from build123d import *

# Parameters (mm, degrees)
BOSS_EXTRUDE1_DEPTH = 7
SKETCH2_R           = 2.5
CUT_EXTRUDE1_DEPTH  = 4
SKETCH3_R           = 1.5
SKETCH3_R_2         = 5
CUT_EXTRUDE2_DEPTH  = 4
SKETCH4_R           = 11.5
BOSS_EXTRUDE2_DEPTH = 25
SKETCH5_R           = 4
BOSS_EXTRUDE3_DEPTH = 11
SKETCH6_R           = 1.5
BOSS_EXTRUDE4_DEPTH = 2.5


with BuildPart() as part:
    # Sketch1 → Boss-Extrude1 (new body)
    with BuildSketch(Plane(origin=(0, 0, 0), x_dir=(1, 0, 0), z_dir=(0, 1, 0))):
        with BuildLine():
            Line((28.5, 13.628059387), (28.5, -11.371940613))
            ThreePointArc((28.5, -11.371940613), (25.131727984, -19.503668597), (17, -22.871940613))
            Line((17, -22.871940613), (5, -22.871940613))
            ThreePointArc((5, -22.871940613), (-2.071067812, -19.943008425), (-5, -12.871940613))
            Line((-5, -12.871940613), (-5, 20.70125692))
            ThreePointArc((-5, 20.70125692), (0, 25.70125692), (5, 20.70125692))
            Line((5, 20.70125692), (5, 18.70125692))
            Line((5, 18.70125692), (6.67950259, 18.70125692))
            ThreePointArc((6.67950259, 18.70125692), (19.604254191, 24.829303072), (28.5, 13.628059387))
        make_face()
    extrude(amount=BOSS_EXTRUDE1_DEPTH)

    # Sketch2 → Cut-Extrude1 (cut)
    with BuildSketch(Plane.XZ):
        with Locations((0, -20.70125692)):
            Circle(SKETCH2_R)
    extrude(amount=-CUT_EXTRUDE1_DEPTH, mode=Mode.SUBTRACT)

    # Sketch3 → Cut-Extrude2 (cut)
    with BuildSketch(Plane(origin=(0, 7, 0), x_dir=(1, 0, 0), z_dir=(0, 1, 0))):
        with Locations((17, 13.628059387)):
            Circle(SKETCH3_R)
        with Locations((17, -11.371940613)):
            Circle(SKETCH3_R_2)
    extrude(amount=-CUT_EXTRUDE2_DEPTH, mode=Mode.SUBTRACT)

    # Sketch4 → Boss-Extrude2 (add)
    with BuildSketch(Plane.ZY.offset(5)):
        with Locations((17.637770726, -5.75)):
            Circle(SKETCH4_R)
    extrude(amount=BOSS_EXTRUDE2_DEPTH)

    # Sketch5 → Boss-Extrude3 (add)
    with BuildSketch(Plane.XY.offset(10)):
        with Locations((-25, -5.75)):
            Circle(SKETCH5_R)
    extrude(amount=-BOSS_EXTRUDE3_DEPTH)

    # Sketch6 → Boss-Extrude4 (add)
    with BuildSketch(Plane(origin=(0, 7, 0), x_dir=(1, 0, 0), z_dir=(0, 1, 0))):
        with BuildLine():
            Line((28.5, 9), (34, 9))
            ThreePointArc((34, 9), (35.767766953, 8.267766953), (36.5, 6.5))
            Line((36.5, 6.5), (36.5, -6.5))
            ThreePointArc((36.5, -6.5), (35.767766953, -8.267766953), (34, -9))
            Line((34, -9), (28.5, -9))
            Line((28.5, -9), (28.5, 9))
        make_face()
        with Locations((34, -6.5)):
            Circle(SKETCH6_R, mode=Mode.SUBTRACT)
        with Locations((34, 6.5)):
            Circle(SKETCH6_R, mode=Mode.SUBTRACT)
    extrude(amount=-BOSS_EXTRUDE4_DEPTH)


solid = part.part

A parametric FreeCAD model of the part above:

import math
import FreeCAD as App
import Part
import Sketcher

doc = App.newDocument("Part")
body = doc.addObject("PartDesign::Body", "Body")

sketch1 = body.newObject("Sketcher::SketchObject", "Sketch")
sketch1.AttachmentSupport = (doc.getObject("XZ_Plane"), [""])
sketch1.MapMode = "FlatFace"
sketch1.addGeometry([
    Part.LineSegment(App.Vector(28.5, 11.4, 0), App.Vector(28.5, -13.6, 0)),
    Part.ArcOfCircle(Part.Circle(App.Vector(17, -13.6, 0), App.Vector(0, 0, 1), 11.5), math.radians(-154), math.radians(0)),
    Part.LineSegment(App.Vector(6.7, -18.7, 0), App.Vector(5, -18.7, 0)),
    Part.LineSegment(App.Vector(5, -18.7, 0), App.Vector(5, -20.7, 0)),
    Part.ArcOfCircle(Part.Circle(App.Vector(0, -20.7, 0), App.Vector(0, 0, 1), 5), math.radians(180), math.radians(360)),
    Part.LineSegment(App.Vector(-5, -20.7, 0), App.Vector(-5, 12.9, 0)),
    Part.ArcOfCircle(Part.Circle(App.Vector(5, 12.9, 0), App.Vector(0, 0, 1), 10), math.radians(90), math.radians(180)),
    Part.LineSegment(App.Vector(5, 22.9, 0), App.Vector(17, 22.9, 0)),
    Part.ArcOfCircle(Part.Circle(App.Vector(17, 11.4, 0), App.Vector(0, 0, 1), 11.5), math.radians(0), math.radians(90)),
], False)
sketch1.addConstraint([
    Sketcher.Constraint("Tangent", 0, 2, 1, 2),
    Sketcher.Constraint("Coincident", 1, 1, 2, 1),
    Sketcher.Constraint("Coincident", 2, 2, 3, 1),
    Sketcher.Constraint("Tangent", 3, 2, 4, 2),
    Sketcher.Constraint("Tangent", 4, 1, 5, 1),
    Sketcher.Constraint("Tangent", 5, 2, 6, 2),
    Sketcher.Constraint("Tangent", 6, 1, 7, 1),
    Sketcher.Constraint("Tangent", 7, 2, 8, 2),
    Sketcher.Constraint("Tangent", 8, 1, 0, 1),
    Sketcher.Constraint("Vertical", 0),
    Sketcher.Constraint("Horizontal", 2),
    Sketcher.Constraint("Vertical", 3),
    Sketcher.Constraint("Vertical", 5),
    Sketcher.Constraint("Horizontal", 7),
    Sketcher.Constraint("Equal", 1, 8),
    Sketcher.Constraint("PointOnObject", 4, 3, -2),
    Sketcher.Constraint("Vertical", 6, 3, 2, 2),
    Sketcher.Constraint("Radius", 4, 5.0),
    Sketcher.Constraint("Radius", 1, 11.5),
    Sketcher.Constraint("DistanceX", 7, 1, 7, 2, 12.0),
    Sketcher.Constraint("DistanceY", 0, 2, 0, 1, 25.0),
    Sketcher.Constraint("DistanceY", 3, 2, 3, 1, 2.0),
    Sketcher.Constraint("DistanceX", 2, 2, 2, 1, 1.679503),
    Sketcher.Constraint("DistanceY", 1, 3, -1, 1, 13.628059),
])
pad1 = body.newObject("PartDesign::Pad", "Pad")
pad1.Profile = sketch1
pad1.Length = 7
pad1.Reversed = True

sketch2 = body.newObject("Sketcher::SketchObject", "Sketch001")
sketch2.AttachmentSupport = (doc.getObject("XZ_Plane"), [""])
sketch2.MapMode = "FlatFace"
sketch2.addGeometry(Part.Circle(App.Vector(0, -20.7, 0), App.Vector(0, 0, 1), 2.5), False)
sketch2.addConstraint([
    Sketcher.Constraint("PointOnObject", 0, 3, -2),
    Sketcher.Constraint("Diameter", 0, 5.0),
    Sketcher.Constraint("DistanceY", 0, 3, -1, 1, 20.701257),
])
pocket1 = body.newObject("PartDesign::Pocket", "Pocket")
pocket1.Profile = sketch2
pocket1.Length = 4

sketch3 = body.newObject("Sketcher::SketchObject", "Sketch002")
sketch3.AttachmentSupport = (doc.getObject("XZ_Plane"), [""])
sketch3.MapMode = "FlatFace"
sketch3.AttachmentOffset = App.Placement(App.Vector(0, 0, -7), App.Rotation())
sketch3.addGeometry([
    Part.Circle(App.Vector(17, -13.6, 0), App.Vector(0, 0, 1), 1.5),
    Part.Circle(App.Vector(17, 11.4, 0), App.Vector(0, 0, 1), 5),
], False)
sketch3.addConstraint([
    Sketcher.Constraint("Vertical", 0, 3, 1, 3),
    Sketcher.Constraint("Diameter", 0, 3.0),
    Sketcher.Constraint("Diameter", 1, 10.0),
    Sketcher.Constraint("DistanceX", -1, 1, 0, 3, 17.0),
    Sketcher.Constraint("DistanceY", 0, 3, 1, 3, 25.0),
    Sketcher.Constraint("DistanceY", 0, 3, -1, 1, 13.628059),
])
pocket2 = body.newObject("PartDesign::Pocket", "Pocket001")
pocket2.Profile = sketch3
pocket2.Length = 4
pocket2.Reversed = True

sketch4 = body.newObject("Sketcher::SketchObject", "Sketch003")
sketch4.AttachmentSupport = (doc.getObject("YZ_Plane"), [""])
sketch4.MapMode = "FlatFace"
sketch4.AttachmentOffset = App.Placement(App.Vector(0, 0, -5), App.Rotation())
sketch4.addGeometry(Part.Circle(App.Vector(-6, 18, 0), App.Vector(0, 0, 1), 12), False)
sketch4.addConstraint([
    Sketcher.Constraint("Diameter", 0, 23.0),
    Sketcher.Constraint("DistanceX", 0, 3, -1, 1, 5.75),
    Sketcher.Constraint("DistanceY", -1, 1, 0, 3, 17.637771),
])
pad2 = body.newObject("PartDesign::Pad", "Pad001")
pad2.Profile = sketch4
pad2.Length = 25
pad2.Reversed = True

sketch5 = body.newObject("Sketcher::SketchObject", "Sketch004")
sketch5.AttachmentSupport = (doc.getObject("XY_Plane"), [""])
sketch5.MapMode = "FlatFace"
sketch5.AttachmentOffset = App.Placement(App.Vector(0, 0, 10), App.Rotation())
sketch5.addGeometry(Part.Circle(App.Vector(-25, -5.8, 0), App.Vector(0, 0, 1), 4), False)
sketch5.addConstraint([
    Sketcher.Constraint("Diameter", 0, 8.0),
    Sketcher.Constraint("DistanceX", 0, 3, -1, 1, 25.0),
    Sketcher.Constraint("DistanceY", 0, 3, -1, 1, 5.75),
])
pad3 = body.newObject("PartDesign::Pad", "Pad002")
pad3.Profile = sketch5
pad3.Length = 11
pad3.Reversed = True

sketch6 = body.newObject("Sketcher::SketchObject", "Sketch005")
sketch6.AttachmentSupport = (doc.getObject("XZ_Plane"), [""])
sketch6.MapMode = "FlatFace"
sketch6.AttachmentOffset = App.Placement(App.Vector(0, 0, -7), App.Rotation())
sketch6.addGeometry([
    Part.LineSegment(App.Vector(34, -9, 0), App.Vector(28.5, -9, 0)),
    Part.LineSegment(App.Vector(28.5, -9, 0), App.Vector(28.5, 9, 0)),
    Part.LineSegment(App.Vector(28.5, 9, 0), App.Vector(34, 9, 0)),
    Part.ArcOfCircle(Part.Circle(App.Vector(34, 6.5, 0), App.Vector(0, 0, 1), 2.5), math.radians(0), math.radians(90)),
    Part.LineSegment(App.Vector(36.5, 6.5, 0), App.Vector(36.5, -6.5, 0)),
    Part.ArcOfCircle(Part.Circle(App.Vector(34, -6.5, 0), App.Vector(0, 0, 1), 2.5), math.radians(-90), math.radians(0)),
    Part.Circle(App.Vector(34, 6.5, 0), App.Vector(0, 0, 1), 1.5),
    Part.Circle(App.Vector(34, -6.5, 0), App.Vector(0, 0, 1), 1.5),
], False)
sketch6.addConstraint([
    Sketcher.Constraint("Coincident", 0, 2, 1, 1),
    Sketcher.Constraint("Coincident", 1, 2, 2, 1),
    Sketcher.Constraint("Tangent", 2, 2, 3, 2),
    Sketcher.Constraint("Tangent", 3, 1, 4, 1),
    Sketcher.Constraint("Tangent", 4, 2, 5, 2),
    Sketcher.Constraint("Tangent", 5, 1, 0, 1),
    Sketcher.Constraint("Horizontal", 0),
    Sketcher.Constraint("Vertical", 1),
    Sketcher.Constraint("Horizontal", 2),
    Sketcher.Constraint("Vertical", 4),
    Sketcher.Constraint("Coincident", 6, 3, 3, 3),
    Sketcher.Constraint("Coincident", 7, 3, 5, 3),
    Sketcher.Constraint("Equal", 3, 5),
    Sketcher.Constraint("Equal", 6, 7),
    Sketcher.Constraint("Diameter", 6, 3.0),
    Sketcher.Constraint("Radius", 3, 2.5),
    Sketcher.Constraint("DistanceY", 1, 1, 1, 2, 18.0),
    Sketcher.Constraint("DistanceX", 0, 2, 0, 1, 5.5),
    Sketcher.Constraint("DistanceX", -1, 1, 3, 3, 34.0),
    Sketcher.Constraint("DistanceY", 0, 2, -1, 1, 9.0),
])
pad4 = body.newObject("PartDesign::Pad", "Pad003")
pad4.Profile = sketch6
pad4.Length = 2.5

doc.recompute()
